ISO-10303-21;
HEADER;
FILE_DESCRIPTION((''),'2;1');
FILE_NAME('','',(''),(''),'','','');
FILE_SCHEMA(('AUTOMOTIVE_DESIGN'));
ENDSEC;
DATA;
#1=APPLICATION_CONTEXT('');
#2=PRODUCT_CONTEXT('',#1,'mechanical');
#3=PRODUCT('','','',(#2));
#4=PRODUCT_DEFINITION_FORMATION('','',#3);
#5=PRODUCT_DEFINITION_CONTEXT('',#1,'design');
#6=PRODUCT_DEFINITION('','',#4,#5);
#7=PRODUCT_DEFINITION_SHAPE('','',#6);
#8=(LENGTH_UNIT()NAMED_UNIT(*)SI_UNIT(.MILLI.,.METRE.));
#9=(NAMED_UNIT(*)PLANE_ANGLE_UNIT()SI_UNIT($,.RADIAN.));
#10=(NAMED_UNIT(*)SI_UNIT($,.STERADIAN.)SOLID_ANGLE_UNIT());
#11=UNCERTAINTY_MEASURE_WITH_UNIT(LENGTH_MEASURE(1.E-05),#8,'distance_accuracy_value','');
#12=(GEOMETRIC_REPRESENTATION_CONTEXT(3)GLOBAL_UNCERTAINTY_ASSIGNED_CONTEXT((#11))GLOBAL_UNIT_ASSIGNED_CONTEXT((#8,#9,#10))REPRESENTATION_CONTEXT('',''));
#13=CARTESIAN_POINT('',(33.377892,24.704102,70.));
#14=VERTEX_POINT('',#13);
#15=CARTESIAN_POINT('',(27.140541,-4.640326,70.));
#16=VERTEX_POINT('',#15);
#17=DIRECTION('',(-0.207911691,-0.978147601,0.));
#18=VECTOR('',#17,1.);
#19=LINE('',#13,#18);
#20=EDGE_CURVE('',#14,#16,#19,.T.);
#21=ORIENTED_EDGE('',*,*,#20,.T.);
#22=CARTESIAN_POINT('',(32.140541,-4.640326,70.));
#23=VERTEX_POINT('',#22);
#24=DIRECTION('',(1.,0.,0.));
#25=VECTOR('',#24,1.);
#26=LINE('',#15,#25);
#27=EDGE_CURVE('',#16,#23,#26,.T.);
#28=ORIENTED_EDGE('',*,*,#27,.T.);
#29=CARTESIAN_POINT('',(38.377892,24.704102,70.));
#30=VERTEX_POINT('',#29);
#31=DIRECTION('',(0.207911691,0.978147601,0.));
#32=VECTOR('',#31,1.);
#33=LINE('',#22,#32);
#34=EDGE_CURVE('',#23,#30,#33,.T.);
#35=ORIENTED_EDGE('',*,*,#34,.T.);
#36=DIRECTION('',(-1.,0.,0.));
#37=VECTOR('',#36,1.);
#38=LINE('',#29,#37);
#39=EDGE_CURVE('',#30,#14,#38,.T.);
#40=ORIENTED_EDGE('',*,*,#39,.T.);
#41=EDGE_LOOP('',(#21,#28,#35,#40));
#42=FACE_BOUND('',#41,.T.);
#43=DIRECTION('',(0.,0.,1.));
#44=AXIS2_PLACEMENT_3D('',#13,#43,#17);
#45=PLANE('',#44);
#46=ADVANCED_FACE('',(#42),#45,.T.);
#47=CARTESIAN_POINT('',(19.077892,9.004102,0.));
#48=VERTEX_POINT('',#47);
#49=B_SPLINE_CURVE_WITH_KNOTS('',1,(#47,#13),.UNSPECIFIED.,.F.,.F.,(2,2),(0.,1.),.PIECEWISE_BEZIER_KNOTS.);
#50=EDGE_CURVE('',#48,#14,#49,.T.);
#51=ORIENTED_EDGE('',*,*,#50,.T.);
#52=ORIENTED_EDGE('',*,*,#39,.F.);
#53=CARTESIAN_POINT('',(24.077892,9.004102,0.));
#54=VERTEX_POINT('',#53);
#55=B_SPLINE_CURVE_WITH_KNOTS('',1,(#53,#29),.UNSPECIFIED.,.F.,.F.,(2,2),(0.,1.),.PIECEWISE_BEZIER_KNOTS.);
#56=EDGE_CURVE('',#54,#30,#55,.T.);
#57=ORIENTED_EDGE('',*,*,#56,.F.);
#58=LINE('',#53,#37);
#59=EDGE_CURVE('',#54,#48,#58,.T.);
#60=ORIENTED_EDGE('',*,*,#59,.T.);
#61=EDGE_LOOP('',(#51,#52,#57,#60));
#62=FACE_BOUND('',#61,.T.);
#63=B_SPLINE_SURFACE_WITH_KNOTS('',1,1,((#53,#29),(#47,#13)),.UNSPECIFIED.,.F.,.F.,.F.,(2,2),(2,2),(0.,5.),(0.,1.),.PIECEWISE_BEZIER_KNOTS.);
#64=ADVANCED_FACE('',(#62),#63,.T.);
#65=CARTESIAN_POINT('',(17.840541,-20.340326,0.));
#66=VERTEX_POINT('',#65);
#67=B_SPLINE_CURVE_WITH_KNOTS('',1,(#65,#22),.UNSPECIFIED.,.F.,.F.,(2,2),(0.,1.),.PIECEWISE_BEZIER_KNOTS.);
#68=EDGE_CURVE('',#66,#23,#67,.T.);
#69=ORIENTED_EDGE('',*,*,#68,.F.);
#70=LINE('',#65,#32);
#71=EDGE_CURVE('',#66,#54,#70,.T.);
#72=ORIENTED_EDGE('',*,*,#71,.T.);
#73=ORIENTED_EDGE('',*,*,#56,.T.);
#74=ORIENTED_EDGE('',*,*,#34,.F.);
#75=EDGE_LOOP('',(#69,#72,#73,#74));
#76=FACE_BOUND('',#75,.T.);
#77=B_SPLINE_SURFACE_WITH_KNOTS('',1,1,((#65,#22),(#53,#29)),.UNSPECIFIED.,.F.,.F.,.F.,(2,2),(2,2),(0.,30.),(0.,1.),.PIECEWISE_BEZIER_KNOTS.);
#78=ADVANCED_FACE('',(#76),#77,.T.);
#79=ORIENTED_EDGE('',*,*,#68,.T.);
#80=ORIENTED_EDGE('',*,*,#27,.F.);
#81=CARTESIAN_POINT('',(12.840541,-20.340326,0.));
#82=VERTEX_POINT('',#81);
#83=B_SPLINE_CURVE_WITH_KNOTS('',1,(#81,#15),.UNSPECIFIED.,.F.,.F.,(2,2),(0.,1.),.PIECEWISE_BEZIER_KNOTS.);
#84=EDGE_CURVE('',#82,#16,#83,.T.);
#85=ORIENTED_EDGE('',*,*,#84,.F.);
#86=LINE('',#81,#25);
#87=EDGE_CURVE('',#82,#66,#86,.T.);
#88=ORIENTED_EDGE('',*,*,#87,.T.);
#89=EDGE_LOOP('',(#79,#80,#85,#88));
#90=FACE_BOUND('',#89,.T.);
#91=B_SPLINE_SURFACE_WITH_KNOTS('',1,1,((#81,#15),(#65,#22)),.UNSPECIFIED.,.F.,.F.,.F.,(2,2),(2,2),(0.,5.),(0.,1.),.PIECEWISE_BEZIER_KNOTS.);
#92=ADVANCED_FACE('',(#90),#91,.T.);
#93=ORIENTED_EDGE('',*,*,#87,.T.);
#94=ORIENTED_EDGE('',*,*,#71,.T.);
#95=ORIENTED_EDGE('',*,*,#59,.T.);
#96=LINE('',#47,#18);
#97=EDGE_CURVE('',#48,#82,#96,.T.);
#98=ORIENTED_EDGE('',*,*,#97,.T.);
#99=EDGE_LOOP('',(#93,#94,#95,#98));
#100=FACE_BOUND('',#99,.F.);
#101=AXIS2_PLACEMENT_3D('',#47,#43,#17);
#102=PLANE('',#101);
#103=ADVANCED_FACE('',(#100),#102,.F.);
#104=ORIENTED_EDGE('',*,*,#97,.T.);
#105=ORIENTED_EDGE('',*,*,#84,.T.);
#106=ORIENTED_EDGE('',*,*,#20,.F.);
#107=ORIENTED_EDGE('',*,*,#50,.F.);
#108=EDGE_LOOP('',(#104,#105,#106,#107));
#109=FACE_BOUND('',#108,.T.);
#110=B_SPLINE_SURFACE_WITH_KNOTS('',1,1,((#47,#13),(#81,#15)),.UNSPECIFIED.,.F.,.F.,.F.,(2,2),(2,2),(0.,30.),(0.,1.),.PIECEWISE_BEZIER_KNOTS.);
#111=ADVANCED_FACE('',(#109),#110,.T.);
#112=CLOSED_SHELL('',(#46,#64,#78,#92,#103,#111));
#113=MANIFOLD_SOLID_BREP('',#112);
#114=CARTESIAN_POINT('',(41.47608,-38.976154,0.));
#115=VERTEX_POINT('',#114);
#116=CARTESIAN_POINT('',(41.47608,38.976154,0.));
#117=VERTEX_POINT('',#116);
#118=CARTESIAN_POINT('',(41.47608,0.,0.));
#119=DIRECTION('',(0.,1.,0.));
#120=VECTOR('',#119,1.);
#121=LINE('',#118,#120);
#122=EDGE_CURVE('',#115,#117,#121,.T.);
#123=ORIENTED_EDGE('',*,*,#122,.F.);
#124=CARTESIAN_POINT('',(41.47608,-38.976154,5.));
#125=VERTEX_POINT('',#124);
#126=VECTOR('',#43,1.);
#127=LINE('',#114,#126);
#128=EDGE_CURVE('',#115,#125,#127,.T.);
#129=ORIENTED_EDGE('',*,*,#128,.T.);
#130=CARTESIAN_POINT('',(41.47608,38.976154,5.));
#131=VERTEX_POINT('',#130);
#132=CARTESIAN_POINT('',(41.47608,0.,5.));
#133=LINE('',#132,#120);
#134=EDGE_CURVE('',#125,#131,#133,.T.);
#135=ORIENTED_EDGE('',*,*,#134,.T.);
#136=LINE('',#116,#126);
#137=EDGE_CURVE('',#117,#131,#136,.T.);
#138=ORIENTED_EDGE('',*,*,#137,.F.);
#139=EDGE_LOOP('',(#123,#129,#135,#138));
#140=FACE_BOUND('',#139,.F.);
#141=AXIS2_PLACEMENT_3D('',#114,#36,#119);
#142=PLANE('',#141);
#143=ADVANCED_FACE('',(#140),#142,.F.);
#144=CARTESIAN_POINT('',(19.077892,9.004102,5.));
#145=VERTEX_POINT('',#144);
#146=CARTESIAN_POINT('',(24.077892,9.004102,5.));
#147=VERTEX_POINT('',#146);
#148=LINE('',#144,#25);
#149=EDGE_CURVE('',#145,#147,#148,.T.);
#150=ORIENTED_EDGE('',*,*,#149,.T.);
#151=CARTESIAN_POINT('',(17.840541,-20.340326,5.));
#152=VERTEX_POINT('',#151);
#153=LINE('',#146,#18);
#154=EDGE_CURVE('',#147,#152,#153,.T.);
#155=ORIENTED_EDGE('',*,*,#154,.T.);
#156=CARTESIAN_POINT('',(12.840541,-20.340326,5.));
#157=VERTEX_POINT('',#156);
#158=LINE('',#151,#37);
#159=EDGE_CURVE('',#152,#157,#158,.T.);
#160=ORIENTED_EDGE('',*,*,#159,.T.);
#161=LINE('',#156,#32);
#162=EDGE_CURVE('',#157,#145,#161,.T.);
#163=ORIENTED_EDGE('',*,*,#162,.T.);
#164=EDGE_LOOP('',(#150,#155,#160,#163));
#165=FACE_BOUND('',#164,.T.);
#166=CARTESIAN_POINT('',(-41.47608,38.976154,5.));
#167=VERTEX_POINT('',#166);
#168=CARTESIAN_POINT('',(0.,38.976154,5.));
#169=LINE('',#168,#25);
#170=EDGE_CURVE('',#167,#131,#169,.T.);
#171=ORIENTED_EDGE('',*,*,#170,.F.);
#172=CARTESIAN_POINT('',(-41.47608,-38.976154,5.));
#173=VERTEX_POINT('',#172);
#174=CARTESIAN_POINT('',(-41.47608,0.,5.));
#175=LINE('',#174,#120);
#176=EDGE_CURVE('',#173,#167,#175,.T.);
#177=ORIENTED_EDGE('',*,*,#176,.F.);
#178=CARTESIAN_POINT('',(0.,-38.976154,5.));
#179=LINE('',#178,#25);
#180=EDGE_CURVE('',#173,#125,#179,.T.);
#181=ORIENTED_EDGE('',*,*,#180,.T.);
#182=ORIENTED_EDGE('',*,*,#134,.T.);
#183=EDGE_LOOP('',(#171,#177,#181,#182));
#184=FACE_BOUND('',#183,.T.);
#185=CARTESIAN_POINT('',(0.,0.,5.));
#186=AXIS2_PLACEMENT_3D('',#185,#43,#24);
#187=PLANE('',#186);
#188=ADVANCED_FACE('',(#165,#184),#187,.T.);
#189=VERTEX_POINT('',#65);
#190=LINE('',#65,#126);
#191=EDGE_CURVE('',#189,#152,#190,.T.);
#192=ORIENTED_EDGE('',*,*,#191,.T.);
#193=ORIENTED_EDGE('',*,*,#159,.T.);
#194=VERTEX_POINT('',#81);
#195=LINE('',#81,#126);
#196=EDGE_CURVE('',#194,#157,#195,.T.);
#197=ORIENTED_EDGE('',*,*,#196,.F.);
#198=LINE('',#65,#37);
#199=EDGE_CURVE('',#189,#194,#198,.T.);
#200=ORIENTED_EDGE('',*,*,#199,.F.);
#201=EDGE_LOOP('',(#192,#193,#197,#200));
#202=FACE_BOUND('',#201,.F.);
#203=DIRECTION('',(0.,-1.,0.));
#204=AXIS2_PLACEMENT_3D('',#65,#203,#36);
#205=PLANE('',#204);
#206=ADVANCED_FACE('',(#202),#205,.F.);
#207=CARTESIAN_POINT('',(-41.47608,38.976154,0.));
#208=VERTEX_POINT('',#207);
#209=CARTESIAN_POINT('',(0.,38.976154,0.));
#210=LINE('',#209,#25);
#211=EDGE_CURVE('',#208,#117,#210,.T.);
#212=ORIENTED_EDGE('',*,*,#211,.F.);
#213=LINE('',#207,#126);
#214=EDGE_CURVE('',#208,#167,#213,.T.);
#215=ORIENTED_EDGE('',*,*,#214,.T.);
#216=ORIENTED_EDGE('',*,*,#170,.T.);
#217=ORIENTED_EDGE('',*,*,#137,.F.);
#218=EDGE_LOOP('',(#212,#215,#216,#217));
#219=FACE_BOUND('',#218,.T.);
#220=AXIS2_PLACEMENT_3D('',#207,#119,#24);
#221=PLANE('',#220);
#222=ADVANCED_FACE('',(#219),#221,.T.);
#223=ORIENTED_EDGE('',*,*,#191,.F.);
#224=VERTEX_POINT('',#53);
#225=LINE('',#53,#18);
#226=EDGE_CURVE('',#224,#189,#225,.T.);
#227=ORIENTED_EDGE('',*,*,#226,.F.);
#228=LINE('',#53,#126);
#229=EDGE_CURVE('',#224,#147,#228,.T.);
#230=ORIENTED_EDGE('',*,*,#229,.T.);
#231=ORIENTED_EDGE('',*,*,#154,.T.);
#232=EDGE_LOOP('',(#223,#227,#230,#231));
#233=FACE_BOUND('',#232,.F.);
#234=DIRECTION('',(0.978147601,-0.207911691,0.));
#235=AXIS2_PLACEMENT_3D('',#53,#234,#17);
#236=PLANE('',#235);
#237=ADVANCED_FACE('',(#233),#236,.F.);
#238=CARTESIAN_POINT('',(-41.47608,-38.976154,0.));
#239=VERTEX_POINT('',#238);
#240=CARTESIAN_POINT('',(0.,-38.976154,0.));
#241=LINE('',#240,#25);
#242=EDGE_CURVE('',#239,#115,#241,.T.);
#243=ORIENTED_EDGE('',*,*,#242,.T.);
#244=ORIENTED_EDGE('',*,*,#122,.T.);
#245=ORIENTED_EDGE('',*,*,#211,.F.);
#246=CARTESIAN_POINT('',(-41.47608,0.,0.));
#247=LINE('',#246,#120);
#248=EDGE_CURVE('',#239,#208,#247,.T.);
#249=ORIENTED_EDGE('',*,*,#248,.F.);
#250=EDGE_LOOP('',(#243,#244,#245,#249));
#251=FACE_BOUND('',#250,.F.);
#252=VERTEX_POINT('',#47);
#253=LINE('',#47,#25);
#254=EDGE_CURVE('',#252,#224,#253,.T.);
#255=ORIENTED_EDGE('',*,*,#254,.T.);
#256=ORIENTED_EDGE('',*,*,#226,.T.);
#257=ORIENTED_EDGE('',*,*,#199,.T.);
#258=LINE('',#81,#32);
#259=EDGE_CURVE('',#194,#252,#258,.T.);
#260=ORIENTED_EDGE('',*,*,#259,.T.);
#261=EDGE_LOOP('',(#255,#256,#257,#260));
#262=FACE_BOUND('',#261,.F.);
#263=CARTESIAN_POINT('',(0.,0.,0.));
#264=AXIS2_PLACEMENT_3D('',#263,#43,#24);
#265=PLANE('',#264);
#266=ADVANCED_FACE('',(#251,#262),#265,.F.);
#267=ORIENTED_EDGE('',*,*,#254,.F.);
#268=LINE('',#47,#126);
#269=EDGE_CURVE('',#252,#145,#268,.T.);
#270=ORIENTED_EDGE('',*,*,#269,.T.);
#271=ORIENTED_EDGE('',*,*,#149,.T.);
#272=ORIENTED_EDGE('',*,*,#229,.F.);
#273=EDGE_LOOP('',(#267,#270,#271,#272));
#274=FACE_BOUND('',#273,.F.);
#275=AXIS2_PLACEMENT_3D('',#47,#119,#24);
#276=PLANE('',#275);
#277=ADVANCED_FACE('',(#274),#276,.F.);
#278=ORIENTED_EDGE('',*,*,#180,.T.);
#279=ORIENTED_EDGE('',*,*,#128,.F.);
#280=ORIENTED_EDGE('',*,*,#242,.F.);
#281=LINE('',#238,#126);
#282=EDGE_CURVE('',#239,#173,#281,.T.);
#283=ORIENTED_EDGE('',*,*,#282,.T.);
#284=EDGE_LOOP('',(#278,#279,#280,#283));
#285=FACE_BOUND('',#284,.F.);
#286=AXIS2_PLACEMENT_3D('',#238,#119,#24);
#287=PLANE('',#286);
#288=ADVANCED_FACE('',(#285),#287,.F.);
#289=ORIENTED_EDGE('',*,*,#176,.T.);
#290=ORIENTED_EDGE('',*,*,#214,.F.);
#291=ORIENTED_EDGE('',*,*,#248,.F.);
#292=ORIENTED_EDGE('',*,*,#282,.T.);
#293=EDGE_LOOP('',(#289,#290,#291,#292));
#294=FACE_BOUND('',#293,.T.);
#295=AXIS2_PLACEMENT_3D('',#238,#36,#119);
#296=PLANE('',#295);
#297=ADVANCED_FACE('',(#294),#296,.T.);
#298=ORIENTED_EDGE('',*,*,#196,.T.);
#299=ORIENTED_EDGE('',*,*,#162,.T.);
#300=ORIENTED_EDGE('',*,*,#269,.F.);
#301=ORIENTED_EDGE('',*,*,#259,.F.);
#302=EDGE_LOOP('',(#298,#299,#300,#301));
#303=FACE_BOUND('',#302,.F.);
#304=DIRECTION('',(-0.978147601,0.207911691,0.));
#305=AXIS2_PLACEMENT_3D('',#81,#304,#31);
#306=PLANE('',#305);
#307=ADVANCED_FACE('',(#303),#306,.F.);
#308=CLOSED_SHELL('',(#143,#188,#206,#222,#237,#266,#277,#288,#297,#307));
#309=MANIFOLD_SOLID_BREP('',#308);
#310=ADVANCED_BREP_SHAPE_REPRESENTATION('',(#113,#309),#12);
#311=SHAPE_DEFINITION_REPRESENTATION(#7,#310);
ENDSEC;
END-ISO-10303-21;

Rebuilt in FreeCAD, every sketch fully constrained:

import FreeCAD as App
import Part
import Sketcher
Q = App.Units.Quantity

doc = App.newDocument("Part")
body = doc.addObject("PartDesign::Body", "Body")

# Sketch on XY plane
sketch1 = body.newObject("Sketcher::SketchObject", "Sketch")
sketch1.AttachmentSupport = (doc.getObject("XY_Plane"), [""])
sketch1.MapMode = "FlatFace"
sketch1.addGeometry([
    Part.LineSegment(App.Vector(19, 9, 0), App.Vector(13, -20, 0)),
    Part.LineSegment(App.Vector(13, -20, 0), App.Vector(18, -20, 0)),
    Part.LineSegment(App.Vector(18, -20, 0), App.Vector(24, 9, 0)),
    Part.LineSegment(App.Vector(24, 9, 0), App.Vector(19, 9, 0)),
], False)
sketch1.addConstraint([
    Sketcher.Constraint("Coincident", 0, 2, 1, 1),
    Sketcher.Constraint("Coincident", 1, 2, 2, 1),
    Sketcher.Constraint("Coincident", 2, 2, 3, 1),
    Sketcher.Constraint("Coincident", 3, 2, 0, 1),
    Sketcher.Constraint("Horizontal", 1),
    Sketcher.Constraint("Horizontal", 3),
    Sketcher.Constraint("Parallel", 0, 2),
    Sketcher.Constraint("DistanceX", 1, 1, 1, 2, Q("5 mm")),
    Sketcher.Constraint("Angle", 0, Q("-102 deg")),
    Sketcher.Constraint("Distance", 0, Q("30 mm")),
    Sketcher.Constraint("DistanceX", -1, 1, 0, 2, Q("12.840541 mm")),
    Sketcher.Constraint("DistanceY", 0, 2, -1, 1, Q("20.340326 mm")),
])

# Sketch on XY plane
sketch2 = body.newObject("Sketcher::SketchObject", "Sketch001")
sketch2.AttachmentSupport = (doc.getObject("XY_Plane"), [""])
sketch2.MapMode = "FlatFace"
sketch2.AttachmentOffset = App.Placement(App.Vector(0, 0, 70), App.Rotation())
sketch2.addGeometry([
    Part.LineSegment(App.Vector(38, 25, 0), App.Vector(33, 25, 0)),
    Part.LineSegment(App.Vector(33, 25, 0), App.Vector(27, -5, 0)),
    Part.LineSegment(App.Vector(27, -5, 0), App.Vector(32, -5, 0)),
    Part.LineSegment(App.Vector(32, -5, 0), App.Vector(38, 25, 0)),
], False)
sketch2.addConstraint([
    Sketcher.Constraint("Coincident", 0, 2, 1, 1),
    Sketcher.Constraint("Coincident", 1, 2, 2, 1),
    Sketcher.Constraint("Coincident", 2, 2, 3, 1),
    Sketcher.Constraint("Coincident", 3, 2, 0, 1),
    Sketcher.Constraint("Horizontal", 0),
    Sketcher.Constraint("Horizontal", 2),
    Sketcher.Constraint("Parallel", 1, 3),
    Sketcher.Constraint("DistanceX", 0, 2, 0, 1, Q("5 mm")),
    Sketcher.Constraint("Angle", 1, Q("-102 deg")),
    Sketcher.Constraint("Distance", 1, Q("30 mm")),
    Sketcher.Constraint("DistanceX", -1, 1, 0, 2, Q("33.377892 mm")),
    Sketcher.Constraint("DistanceY", -1, 1, 0, 2, Q("24.704102 mm")),
])

additiveloft = body.newObject("PartDesign::AdditiveLoft", "AdditiveLoft")
additiveloft.Profile = sketch1
additiveloft.Sections = [sketch2]
body2 = doc.addObject("PartDesign::Body", "Body001")

# Sketch on XY plane
sketch3 = body2.newObject("Sketcher::SketchObject", "Sketch002")
sketch3.AttachmentSupport = (doc.getObject("XY_Plane001"), [""])
sketch3.MapMode = "FlatFace"
sketch3.addGeometry([
    Part.LineSegment(App.Vector(-41, 39, 0), App.Vector(-41, -39, 0)),  # 0
    Part.LineSegment(App.Vector(-41, -39, 0), App.Vector(41, -39, 0)),  # 1
    Part.LineSegment(App.Vector(41, -39, 0), App.Vector(41, 39, 0)),  # 2
    Part.LineSegment(App.Vector(41, 39, 0), App.Vector(-41, 39, 0)),  # 3
    Part.LineSegment(App.Vector(24, 9, 0), App.Vector(18, -20, 0)),  # 4
    Part.LineSegment(App.Vector(18, -20, 0), App.Vector(13, -20, 0)),  # 5
    Part.LineSegment(App.Vector(13, -20, 0), App.Vector(19, 9, 0)),  # 6
    Part.LineSegment(App.Vector(19, 9, 0), App.Vector(24, 9, 0)),  # 7
], False)
sketch3.addConstraint([
    Sketcher.Constraint("Coincident", 0, 2, 1, 1),
    Sketcher.Constraint("Coincident", 1, 2, 2, 1),
    Sketcher.Constraint("Coincident", 2, 2, 3, 1),
    Sketcher.Constraint("Coincident", 3, 2, 0, 1),
    Sketcher.Constraint("Coincident", 4, 2, 5, 1),
    Sketcher.Constraint("Coincident", 5, 2, 6, 1),
    Sketcher.Constraint("Coincident", 6, 2, 7, 1),
    Sketcher.Constraint("Coincident", 7, 2, 4, 1),
    Sketcher.Constraint("Vertical", 0),
    Sketcher.Constraint("Horizontal", 1),
    Sketcher.Constraint("Vertical", 2),
    Sketcher.Constraint("Horizontal", 3),
    Sketcher.Constraint("Horizontal", 5),
    Sketcher.Constraint("Horizontal", 7),
    Sketcher.Constraint("Symmetric", 0, 2, 2, 2, -1, 1),
    Sketcher.Constraint("Parallel", 4, 6),
    Sketcher.Constraint("DistanceX", 5, 2, 5, 1, Q("5 mm")),
    Sketcher.Constraint("Angle", 4, Q("-102 deg")),
    Sketcher.Constraint("Distance", 4, Q("30 mm")),
    Sketcher.Constraint("DistanceX", 1, 1, 1, 2, Q("82.952161 mm")),
    Sketcher.Constraint("DistanceY", 0, 2, 0, 1, Q("77.952307 mm")),
    Sketcher.Constraint("DistanceX", -1, 1, 4, 2, Q("17.840541 mm")),
    Sketcher.Constraint("DistanceY", 4, 2, 2, 2, Q("59.316479 mm")),
])
pad1 = body2.newObject("PartDesign::Pad", "Pad")
pad1.Profile = sketch3
pad1.Length = 5

doc.recompute()
